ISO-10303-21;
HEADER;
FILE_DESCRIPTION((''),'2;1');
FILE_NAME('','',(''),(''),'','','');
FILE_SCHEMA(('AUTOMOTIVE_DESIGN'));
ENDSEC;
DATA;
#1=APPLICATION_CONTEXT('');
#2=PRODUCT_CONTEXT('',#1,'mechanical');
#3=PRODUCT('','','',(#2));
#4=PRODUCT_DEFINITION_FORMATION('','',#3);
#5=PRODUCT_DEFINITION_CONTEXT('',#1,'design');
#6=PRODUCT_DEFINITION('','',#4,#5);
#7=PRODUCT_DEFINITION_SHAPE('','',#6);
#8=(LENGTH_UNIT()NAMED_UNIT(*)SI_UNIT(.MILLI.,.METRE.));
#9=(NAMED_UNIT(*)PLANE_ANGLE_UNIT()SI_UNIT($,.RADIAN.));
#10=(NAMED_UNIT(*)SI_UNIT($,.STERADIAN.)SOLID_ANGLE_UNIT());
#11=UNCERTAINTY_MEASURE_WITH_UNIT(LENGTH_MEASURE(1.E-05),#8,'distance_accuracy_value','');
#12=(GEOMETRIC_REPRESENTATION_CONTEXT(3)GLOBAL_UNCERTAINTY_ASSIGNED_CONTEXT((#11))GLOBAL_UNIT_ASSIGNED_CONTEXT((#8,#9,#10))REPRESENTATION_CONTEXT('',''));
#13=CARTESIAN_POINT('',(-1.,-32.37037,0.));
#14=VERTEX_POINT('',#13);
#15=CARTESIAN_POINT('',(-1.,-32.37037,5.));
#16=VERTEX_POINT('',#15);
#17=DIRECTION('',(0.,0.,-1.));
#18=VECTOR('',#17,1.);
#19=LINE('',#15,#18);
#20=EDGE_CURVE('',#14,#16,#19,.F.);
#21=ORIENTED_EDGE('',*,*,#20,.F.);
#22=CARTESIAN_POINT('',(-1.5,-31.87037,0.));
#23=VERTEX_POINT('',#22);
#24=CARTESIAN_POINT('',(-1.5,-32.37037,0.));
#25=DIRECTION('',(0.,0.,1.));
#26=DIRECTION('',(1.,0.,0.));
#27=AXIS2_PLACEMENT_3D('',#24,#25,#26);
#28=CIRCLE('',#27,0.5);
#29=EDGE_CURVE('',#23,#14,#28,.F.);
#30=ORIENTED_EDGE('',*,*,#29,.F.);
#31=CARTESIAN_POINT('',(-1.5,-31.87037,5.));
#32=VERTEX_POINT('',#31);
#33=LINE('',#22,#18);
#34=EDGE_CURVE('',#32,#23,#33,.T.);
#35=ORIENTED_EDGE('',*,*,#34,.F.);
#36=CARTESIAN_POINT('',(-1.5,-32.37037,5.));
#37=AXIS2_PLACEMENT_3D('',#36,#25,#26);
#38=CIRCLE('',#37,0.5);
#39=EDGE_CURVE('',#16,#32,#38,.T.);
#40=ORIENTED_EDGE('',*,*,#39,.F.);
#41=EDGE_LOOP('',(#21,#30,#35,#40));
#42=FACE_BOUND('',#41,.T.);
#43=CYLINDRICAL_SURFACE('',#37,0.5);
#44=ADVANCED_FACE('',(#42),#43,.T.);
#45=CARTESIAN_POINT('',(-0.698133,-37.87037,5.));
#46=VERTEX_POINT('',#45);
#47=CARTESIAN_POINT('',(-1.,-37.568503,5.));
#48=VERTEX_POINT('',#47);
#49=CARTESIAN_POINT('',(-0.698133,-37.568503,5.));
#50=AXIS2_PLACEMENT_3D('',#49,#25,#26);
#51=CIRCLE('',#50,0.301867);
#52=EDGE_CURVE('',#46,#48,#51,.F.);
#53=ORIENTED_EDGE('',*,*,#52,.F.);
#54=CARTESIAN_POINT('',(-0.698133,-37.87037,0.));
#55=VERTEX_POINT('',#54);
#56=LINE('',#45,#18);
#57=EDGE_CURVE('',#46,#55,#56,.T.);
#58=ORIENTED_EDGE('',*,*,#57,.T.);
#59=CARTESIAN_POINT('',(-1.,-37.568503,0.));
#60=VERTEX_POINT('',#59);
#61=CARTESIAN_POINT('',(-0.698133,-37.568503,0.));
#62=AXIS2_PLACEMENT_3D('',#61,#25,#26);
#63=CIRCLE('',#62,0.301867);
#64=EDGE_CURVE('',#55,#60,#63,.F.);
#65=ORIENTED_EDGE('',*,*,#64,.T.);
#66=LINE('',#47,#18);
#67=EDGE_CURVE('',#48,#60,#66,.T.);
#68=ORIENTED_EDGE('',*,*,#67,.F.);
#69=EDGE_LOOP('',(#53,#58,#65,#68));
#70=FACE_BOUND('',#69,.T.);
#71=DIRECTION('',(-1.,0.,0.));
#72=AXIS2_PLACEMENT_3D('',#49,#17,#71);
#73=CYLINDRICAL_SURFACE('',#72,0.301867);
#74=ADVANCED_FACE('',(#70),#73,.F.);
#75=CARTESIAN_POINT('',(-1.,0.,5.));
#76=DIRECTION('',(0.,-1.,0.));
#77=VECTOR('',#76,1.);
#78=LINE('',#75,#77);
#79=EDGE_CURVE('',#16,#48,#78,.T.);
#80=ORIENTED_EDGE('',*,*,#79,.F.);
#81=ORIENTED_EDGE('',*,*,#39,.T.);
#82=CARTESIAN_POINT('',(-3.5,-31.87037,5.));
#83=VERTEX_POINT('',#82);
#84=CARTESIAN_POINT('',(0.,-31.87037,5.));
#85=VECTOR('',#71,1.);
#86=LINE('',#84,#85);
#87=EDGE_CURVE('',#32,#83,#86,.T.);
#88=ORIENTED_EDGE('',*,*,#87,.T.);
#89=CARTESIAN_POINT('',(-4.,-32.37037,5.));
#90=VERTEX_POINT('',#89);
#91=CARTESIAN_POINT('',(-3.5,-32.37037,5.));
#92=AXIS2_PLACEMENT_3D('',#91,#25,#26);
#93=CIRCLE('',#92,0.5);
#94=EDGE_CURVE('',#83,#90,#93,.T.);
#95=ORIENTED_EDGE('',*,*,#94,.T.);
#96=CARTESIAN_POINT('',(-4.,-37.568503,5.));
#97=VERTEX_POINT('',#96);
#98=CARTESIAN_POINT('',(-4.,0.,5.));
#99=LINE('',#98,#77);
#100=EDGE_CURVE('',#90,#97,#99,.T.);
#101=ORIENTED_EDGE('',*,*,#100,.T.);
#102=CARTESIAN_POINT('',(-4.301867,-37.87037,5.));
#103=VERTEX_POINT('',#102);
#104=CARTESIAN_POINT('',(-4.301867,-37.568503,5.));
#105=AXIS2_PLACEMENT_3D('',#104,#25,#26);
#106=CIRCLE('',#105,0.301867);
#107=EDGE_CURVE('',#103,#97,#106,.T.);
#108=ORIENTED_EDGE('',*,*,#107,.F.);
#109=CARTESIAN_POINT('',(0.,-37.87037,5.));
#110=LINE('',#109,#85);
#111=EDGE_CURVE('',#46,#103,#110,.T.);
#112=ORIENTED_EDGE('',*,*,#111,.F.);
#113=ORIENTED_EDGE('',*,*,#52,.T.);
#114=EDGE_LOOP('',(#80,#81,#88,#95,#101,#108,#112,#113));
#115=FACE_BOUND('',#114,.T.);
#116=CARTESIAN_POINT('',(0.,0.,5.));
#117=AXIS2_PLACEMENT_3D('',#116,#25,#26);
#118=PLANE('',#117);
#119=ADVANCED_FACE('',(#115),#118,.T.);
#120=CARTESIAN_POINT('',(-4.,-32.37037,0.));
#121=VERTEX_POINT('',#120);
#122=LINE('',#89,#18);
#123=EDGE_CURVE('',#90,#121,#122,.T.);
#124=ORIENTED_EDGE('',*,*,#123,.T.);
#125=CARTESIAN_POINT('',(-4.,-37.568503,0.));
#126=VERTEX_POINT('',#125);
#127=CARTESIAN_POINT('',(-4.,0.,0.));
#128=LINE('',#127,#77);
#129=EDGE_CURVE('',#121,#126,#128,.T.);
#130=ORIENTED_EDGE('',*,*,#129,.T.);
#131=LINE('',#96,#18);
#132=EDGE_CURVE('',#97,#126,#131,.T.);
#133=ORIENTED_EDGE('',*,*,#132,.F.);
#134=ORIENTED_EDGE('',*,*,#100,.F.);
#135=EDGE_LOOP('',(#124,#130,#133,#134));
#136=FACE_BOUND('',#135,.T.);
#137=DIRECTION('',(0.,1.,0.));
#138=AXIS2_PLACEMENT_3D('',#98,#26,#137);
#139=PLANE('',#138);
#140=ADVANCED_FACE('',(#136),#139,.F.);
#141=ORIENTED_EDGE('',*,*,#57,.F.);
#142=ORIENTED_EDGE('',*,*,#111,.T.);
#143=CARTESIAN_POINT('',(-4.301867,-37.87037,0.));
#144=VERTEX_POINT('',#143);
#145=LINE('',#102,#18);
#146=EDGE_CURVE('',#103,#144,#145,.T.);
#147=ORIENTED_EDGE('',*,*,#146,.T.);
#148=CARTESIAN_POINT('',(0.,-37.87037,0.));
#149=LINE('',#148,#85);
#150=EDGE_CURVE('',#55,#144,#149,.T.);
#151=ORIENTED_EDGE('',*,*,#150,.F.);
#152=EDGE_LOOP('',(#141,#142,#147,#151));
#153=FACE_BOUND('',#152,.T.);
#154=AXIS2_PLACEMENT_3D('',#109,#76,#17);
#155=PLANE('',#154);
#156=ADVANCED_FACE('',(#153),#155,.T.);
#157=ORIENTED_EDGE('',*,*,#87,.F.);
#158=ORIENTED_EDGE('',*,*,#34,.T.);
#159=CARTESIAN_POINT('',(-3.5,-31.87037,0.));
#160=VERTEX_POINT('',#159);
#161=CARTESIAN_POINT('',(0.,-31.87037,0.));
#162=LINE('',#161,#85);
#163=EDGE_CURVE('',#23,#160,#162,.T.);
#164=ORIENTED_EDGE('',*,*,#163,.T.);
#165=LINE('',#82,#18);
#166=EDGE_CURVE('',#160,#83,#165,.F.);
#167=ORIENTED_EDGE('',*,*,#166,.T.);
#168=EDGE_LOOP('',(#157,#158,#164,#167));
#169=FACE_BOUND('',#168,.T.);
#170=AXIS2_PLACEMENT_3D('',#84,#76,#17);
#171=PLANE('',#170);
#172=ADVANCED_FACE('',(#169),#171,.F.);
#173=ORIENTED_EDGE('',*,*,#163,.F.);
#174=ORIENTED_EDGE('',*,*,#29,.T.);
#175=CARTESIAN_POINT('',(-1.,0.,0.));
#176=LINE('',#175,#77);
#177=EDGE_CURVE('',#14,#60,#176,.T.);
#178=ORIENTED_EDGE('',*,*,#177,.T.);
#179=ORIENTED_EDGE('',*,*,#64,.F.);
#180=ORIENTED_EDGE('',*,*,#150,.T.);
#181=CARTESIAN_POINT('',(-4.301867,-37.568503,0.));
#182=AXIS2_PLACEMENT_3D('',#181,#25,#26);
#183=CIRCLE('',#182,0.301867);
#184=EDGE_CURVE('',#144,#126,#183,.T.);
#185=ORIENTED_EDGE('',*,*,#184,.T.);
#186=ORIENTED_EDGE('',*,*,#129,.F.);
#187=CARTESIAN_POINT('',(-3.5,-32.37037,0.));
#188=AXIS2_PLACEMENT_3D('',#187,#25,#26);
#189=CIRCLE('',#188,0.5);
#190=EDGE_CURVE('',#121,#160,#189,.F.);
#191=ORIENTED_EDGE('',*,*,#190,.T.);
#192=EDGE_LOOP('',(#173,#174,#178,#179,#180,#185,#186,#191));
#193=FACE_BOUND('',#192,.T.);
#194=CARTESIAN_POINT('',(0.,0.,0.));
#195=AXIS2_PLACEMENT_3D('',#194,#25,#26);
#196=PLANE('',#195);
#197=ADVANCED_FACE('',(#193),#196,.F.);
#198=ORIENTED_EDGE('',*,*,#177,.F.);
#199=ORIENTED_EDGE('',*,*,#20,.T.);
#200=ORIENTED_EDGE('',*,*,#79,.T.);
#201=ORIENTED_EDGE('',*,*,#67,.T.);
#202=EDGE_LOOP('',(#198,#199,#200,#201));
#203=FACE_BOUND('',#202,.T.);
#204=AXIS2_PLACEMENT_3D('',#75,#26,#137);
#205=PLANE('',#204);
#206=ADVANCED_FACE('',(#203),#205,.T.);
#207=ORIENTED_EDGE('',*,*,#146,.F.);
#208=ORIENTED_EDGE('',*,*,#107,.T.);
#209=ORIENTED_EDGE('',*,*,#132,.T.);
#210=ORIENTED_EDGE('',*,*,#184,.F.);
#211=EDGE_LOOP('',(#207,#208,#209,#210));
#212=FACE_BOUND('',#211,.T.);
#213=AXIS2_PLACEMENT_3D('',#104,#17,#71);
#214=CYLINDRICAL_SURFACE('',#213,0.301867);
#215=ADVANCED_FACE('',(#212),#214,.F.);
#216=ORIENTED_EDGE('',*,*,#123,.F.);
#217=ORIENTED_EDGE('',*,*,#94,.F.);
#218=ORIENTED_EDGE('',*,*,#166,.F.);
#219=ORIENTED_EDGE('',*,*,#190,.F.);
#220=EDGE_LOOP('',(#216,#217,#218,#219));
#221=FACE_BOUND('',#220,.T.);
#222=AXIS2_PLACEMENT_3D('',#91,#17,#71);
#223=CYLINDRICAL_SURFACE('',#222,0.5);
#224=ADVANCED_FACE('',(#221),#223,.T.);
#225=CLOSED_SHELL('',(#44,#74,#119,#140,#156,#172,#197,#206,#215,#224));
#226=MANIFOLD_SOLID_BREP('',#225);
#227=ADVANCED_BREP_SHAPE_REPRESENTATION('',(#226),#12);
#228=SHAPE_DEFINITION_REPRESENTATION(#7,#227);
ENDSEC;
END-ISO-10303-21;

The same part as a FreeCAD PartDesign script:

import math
import FreeCAD as App
import Part
import Sketcher


def edges_at(feature, points):
    """Names of the edges that pass closest to the given points."""
    edges = feature.Shape.Edges
    near = lambda p: min(range(len(edges)), key=lambda i: edges[i].distToShape(Part.Vertex(*p))[0])
    return sorted({f"Edge{near(p) + 1}" for p in points})


def add_polygon(sketch, points):
    """Adds a closed chain of lines whose ends are joined by coincident constraints."""
    first, n = sketch.GeometryCount, len(points)
    for a, b in zip(points, points[1:] + points[:1]):
        sketch.addGeometry(Part.LineSegment(App.Vector(*a, 0), App.Vector(*b, 0)), False)
    for i in range(n):
        sketch.addConstraint(Sketcher.Constraint("Coincident", first + i, 2, first + (i + 1) % n, 1))

doc = App.newDocument("Part")
params = doc.addObject("Spreadsheet::Sheet", "Params")
for row, (alias, value) in enumerate([
    ("sketch1_width", "3 mm"),
    ("sketch1_height", "6 mm"),
    ("pad1_length", "5 mm"),
    ("fillet_radius", "0.5 mm"),
], start=1):
    params.set(f"A{row}", alias)
    params.set(f"B{row}", "=" + value)
    params.setAlias(f"B{row}", alias)

body = doc.addObject("PartDesign::Body", "Body")

# Sketch on XY plane
sketch1 = body.newObject("Sketcher::SketchObject", "Sketch")
sketch1.AttachmentSupport = (doc.getObject("XY_Plane"), [""])
sketch1.MapMode = "FlatFace"
add_polygon(sketch1, [(-4, -31.9), (-4, -37.9), (-1, -37.9), (-1, -31.9)])  # lines 0-3
sketch1.addConstraint(Sketcher.Constraint("Vertical", 0))
sketch1.addConstraint(Sketcher.Constraint("Horizontal", 1))
sketch1.addConstraint(Sketcher.Constraint("Vertical", 2))
sketch1.addConstraint(Sketcher.Constraint("Horizontal", 3))
sketch1.addConstraint(Sketcher.Constraint("DistanceX", 1, 1, 1, 2, 3.0))
sketch1.addConstraint(Sketcher.Constraint("DistanceY", 0, 2, 0, 1, 6.0))
sketch1.addConstraint(Sketcher.Constraint("DistanceX", 0, 2, -1, 1, 4.0))
sketch1.addConstraint(Sketcher.Constraint("DistanceY", 0, 2, -1, 1, 37.87037))
sketch1.setExpression("Constraints[8]", "Params.sketch1_width")
sketch1.setExpression("Constraints[9]", "Params.sketch1_height")
pad1 = body.newObject("PartDesign::Pad", "Pad")
pad1.Profile = sketch1
pad1.setExpression("Length", "Params.pad1_length")
doc.recompute()

fillet = body.newObject("PartDesign::Fillet", "Fillet")
fillet.Base = (pad1, edges_at(pad1, [(-1, -31.87, 2.5), (-4, -31.87, 2.5)]))
fillet.setExpression("Radius", "Params.fillet_radius")

# Sketch on XY plane
sketch2 = body.newObject("Sketcher::SketchObject", "Sketch001")
sketch2.AttachmentSupport = (doc.getObject("XY_Plane"), [""])
sketch2.MapMode = "FlatFace"
sketch2.addGeometry(Part.LineSegment(App.Vector(-4.3, -37.87, 0), App.Vector(-4, -37.87, 0)), False)
sketch2.addGeometry(Part.LineSegment(App.Vector(-4, -37.87, 0), App.Vector(-4, -37.57, 0)), False)
sketch2.addGeometry(Part.ArcOfCircle(Part.Circle(App.Vector(-4.3, -37.57, 0), App.Vector(0, 0, 1), 0.3), math.radians(-90), math.radians(0)), False)
sketch2.addGeometry(Part.LineSegment(App.Vector(-1, -37.57, 0), App.Vector(-1, -37.87, 0)), False)
sketch2.addGeometry(Part.LineSegment(App.Vector(-1, -37.87, 0), App.Vector(-0.7, -37.87, 0)), False)
sketch2.addGeometry(Part.ArcOfCircle(Part.Circle(App.Vector(-0.7, -37.57, 0), App.Vector(0, 0, 1), 0.3), math.radians(180), math.radians(270)), False)
sketch2.addConstraint(Sketcher.Constraint("Coincident", 0, 2, 1, 1))
sketch2.addConstraint(Sketcher.Constraint("Tangent", 1, 2, 2, 2))
sketch2.addConstraint(Sketcher.Constraint("Tangent", 2, 1, 0, 1))
sketch2.addConstraint(Sketcher.Constraint("Coincident", 3, 2, 4, 1))
sketch2.addConstraint(Sketcher.Constraint("Tangent", 4, 2, 5, 2))
sketch2.addConstraint(Sketcher.Constraint("Tangent", 5, 1, 3, 1))
sketch2.addConstraint(Sketcher.Constraint("Horizontal", 0))
sketch2.addConstraint(Sketcher.Constraint("Vertical", 1))
sketch2.addConstraint(Sketcher.Constraint("Vertical", 3))
sketch2.addConstraint(Sketcher.Constraint("Horizontal", 4))
sketch2.addConstraint(Sketcher.Constraint("Equal", 2, 5))
sketch2.addConstraint(Sketcher.Constraint("Horizontal", 2, 3, 5, 3))
sketch2.addConstraint(Sketcher.Constraint("DistanceX", 0, 2, -1, 1, 4.0))
sketch2.addConstraint(Sketcher.Constraint("DistanceX", 3, 2, -1, 1, 1.0))
sketch2.addConstraint(Sketcher.Constraint("Radius", 2, 0.301867))
sketch2.addConstraint(Sketcher.Constraint("DistanceY", 0, 2, -1, 1, 37.87037))
pad2 = body.newObject("PartDesign::Pad", "Pad001")
pad2.Profile = sketch2
pad2.Type = "UpToLast"

doc.recompute()
